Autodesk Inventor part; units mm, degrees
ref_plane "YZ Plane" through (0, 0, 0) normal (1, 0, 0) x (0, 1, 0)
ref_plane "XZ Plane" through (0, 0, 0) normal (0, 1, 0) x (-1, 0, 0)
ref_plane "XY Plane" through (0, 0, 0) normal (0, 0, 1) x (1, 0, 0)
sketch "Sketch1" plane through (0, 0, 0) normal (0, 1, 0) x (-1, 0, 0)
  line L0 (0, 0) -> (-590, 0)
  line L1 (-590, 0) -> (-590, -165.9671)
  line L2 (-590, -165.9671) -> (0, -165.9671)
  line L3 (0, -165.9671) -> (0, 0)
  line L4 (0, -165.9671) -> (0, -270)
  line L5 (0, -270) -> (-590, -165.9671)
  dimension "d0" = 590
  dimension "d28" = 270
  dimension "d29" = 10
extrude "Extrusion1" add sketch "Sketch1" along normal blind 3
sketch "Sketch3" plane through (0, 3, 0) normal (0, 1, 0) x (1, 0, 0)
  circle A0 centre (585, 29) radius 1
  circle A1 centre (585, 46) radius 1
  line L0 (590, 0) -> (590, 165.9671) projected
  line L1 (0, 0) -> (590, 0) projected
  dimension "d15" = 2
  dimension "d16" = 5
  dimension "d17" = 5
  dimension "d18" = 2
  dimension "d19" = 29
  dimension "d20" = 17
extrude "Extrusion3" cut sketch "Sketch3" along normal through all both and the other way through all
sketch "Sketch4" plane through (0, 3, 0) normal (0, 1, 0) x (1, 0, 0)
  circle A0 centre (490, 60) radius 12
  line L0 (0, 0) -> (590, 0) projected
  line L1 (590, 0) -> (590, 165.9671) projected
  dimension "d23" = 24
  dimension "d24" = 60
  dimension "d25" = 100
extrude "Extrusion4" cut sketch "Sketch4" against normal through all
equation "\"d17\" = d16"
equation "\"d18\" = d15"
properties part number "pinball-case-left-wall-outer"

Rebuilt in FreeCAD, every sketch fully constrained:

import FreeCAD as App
import Part
import Sketcher
Q = App.Units.Quantity

doc = App.newDocument("Part")
body = doc.addObject("PartDesign::Body", "Body")

sketch1 = body.newObject("Sketcher::SketchObject", "Sketch")
sketch1.AttachmentSupport = (doc.getObject("XZ_Plane"), [""])
sketch1.MapMode = "FlatFace"
sketch1.addGeometry(Part.LineSegment(App.Vector(0, 0, 0), App.Vector(590, 0, 0)), False)
sketch1.addGeometry(Part.LineSegment(App.Vector(590, 0, 0), App.Vector(590, -166, 0)), False)
sketch1.addGeometry(Part.LineSegment(App.Vector(590, -166, 0), App.Vector(0, -270, 0)), False)
sketch1.addGeometry(Part.LineSegment(App.Vector(0, -270, 0), App.Vector(0, 0, 0)), False)
sketch1.addConstraint(Sketcher.Constraint("Coincident", 0, 2, 1, 1))
sketch1.addConstraint(Sketcher.Constraint("Coincident", 1, 2, 2, 1))
sketch1.addConstraint(Sketcher.Constraint("Coincident", 2, 2, 3, 1))
sketch1.addConstraint(Sketcher.Constraint("Coincident", 3, 2, 0, 1))
sketch1.addConstraint(Sketcher.Constraint("Horizontal", 0))
sketch1.addConstraint(Sketcher.Constraint("Vertical", 1))
sketch1.addConstraint(Sketcher.Constraint("Vertical", 3))
sketch1.addConstraint(Sketcher.Constraint("Coincident", 3, 2, -1, 1))
sketch1.addConstraint(Sketcher.Constraint("DistanceX", 0, 1, 0, 2, 590.0))
sketch1.addConstraint(Sketcher.Constraint("DistanceY", 3, 1, 3, 2, 270.0))
sketch1.addConstraint(Sketcher.Constraint("Angle", 2, Q("-170 deg")))
pad1 = body.newObject("PartDesign::Pad", "Pad")
pad1.Profile = sketch1
pad1.Length = 3
pad1.Reversed = True

sketch2 = body.newObject("Sketcher::SketchObject", "Sketch001")
sketch2.AttachmentSupport = (doc.getObject("XZ_Plane"), [""])
sketch2.MapMode = "FlatFace"
sketch2.AttachmentOffset = App.Placement(App.Vector(0, 0, -3), App.Rotation())
sketch2.addGeometry(Part.Circle(App.Vector(585, -29, 0), App.Vector(0, 0, 1), 1), False)
sketch2.addGeometry(Part.Circle(App.Vector(585, -46, 0), App.Vector(0, 0, 1), 1), False)
sketch2.addConstraint(Sketcher.Constraint("Equal", 0, 1))
sketch2.addConstraint(Sketcher.Constraint("Vertical", 0, 3, 1, 3))
sketch2.addConstraint(Sketcher.Constraint("Diameter", 0, 2.0))
sketch2.addConstraint(Sketcher.Constraint("DistanceY", 0, 3, -1, 1, 29.0))
sketch2.addConstraint(Sketcher.Constraint("DistanceY", 1, 3, 0, 3, 17.0))
sketch2.addConstraint(Sketcher.Constraint("DistanceX", -1, 1, 0, 3, 585.0))
pocket1 = body.newObject("PartDesign::Pocket", "Pocket")
pocket1.Profile = sketch2
pocket1.Type = "ThroughAll"
pocket1.Midplane = True

sketch3 = body.newObject("Sketcher::SketchObject", "Sketch002")
sketch3.AttachmentSupport = (doc.getObject("XZ_Plane"), [""])
sketch3.MapMode = "FlatFace"
sketch3.AttachmentOffset = App.Placement(App.Vector(0, 0, -3), App.Rotation())
sketch3.addGeometry(Part.Circle(App.Vector(490, -60, 0), App.Vector(0, 0, 1), 12), False)
sketch3.addConstraint(Sketcher.Constraint("Diameter", 0, 24.0))
sketch3.addConstraint(Sketcher.Constraint("DistanceY", 0, 3, -1, 1, 60.0))
sketch3.addConstraint(Sketcher.Constraint("DistanceX", -1, 1, 0, 3, 490.0))
pocket2 = body.newObject("PartDesign::Pocket", "Pocket001")
pocket2.Profile = sketch3
pocket2.Type = "ThroughAll"
pocket2.Reversed = True

doc.recompute()
